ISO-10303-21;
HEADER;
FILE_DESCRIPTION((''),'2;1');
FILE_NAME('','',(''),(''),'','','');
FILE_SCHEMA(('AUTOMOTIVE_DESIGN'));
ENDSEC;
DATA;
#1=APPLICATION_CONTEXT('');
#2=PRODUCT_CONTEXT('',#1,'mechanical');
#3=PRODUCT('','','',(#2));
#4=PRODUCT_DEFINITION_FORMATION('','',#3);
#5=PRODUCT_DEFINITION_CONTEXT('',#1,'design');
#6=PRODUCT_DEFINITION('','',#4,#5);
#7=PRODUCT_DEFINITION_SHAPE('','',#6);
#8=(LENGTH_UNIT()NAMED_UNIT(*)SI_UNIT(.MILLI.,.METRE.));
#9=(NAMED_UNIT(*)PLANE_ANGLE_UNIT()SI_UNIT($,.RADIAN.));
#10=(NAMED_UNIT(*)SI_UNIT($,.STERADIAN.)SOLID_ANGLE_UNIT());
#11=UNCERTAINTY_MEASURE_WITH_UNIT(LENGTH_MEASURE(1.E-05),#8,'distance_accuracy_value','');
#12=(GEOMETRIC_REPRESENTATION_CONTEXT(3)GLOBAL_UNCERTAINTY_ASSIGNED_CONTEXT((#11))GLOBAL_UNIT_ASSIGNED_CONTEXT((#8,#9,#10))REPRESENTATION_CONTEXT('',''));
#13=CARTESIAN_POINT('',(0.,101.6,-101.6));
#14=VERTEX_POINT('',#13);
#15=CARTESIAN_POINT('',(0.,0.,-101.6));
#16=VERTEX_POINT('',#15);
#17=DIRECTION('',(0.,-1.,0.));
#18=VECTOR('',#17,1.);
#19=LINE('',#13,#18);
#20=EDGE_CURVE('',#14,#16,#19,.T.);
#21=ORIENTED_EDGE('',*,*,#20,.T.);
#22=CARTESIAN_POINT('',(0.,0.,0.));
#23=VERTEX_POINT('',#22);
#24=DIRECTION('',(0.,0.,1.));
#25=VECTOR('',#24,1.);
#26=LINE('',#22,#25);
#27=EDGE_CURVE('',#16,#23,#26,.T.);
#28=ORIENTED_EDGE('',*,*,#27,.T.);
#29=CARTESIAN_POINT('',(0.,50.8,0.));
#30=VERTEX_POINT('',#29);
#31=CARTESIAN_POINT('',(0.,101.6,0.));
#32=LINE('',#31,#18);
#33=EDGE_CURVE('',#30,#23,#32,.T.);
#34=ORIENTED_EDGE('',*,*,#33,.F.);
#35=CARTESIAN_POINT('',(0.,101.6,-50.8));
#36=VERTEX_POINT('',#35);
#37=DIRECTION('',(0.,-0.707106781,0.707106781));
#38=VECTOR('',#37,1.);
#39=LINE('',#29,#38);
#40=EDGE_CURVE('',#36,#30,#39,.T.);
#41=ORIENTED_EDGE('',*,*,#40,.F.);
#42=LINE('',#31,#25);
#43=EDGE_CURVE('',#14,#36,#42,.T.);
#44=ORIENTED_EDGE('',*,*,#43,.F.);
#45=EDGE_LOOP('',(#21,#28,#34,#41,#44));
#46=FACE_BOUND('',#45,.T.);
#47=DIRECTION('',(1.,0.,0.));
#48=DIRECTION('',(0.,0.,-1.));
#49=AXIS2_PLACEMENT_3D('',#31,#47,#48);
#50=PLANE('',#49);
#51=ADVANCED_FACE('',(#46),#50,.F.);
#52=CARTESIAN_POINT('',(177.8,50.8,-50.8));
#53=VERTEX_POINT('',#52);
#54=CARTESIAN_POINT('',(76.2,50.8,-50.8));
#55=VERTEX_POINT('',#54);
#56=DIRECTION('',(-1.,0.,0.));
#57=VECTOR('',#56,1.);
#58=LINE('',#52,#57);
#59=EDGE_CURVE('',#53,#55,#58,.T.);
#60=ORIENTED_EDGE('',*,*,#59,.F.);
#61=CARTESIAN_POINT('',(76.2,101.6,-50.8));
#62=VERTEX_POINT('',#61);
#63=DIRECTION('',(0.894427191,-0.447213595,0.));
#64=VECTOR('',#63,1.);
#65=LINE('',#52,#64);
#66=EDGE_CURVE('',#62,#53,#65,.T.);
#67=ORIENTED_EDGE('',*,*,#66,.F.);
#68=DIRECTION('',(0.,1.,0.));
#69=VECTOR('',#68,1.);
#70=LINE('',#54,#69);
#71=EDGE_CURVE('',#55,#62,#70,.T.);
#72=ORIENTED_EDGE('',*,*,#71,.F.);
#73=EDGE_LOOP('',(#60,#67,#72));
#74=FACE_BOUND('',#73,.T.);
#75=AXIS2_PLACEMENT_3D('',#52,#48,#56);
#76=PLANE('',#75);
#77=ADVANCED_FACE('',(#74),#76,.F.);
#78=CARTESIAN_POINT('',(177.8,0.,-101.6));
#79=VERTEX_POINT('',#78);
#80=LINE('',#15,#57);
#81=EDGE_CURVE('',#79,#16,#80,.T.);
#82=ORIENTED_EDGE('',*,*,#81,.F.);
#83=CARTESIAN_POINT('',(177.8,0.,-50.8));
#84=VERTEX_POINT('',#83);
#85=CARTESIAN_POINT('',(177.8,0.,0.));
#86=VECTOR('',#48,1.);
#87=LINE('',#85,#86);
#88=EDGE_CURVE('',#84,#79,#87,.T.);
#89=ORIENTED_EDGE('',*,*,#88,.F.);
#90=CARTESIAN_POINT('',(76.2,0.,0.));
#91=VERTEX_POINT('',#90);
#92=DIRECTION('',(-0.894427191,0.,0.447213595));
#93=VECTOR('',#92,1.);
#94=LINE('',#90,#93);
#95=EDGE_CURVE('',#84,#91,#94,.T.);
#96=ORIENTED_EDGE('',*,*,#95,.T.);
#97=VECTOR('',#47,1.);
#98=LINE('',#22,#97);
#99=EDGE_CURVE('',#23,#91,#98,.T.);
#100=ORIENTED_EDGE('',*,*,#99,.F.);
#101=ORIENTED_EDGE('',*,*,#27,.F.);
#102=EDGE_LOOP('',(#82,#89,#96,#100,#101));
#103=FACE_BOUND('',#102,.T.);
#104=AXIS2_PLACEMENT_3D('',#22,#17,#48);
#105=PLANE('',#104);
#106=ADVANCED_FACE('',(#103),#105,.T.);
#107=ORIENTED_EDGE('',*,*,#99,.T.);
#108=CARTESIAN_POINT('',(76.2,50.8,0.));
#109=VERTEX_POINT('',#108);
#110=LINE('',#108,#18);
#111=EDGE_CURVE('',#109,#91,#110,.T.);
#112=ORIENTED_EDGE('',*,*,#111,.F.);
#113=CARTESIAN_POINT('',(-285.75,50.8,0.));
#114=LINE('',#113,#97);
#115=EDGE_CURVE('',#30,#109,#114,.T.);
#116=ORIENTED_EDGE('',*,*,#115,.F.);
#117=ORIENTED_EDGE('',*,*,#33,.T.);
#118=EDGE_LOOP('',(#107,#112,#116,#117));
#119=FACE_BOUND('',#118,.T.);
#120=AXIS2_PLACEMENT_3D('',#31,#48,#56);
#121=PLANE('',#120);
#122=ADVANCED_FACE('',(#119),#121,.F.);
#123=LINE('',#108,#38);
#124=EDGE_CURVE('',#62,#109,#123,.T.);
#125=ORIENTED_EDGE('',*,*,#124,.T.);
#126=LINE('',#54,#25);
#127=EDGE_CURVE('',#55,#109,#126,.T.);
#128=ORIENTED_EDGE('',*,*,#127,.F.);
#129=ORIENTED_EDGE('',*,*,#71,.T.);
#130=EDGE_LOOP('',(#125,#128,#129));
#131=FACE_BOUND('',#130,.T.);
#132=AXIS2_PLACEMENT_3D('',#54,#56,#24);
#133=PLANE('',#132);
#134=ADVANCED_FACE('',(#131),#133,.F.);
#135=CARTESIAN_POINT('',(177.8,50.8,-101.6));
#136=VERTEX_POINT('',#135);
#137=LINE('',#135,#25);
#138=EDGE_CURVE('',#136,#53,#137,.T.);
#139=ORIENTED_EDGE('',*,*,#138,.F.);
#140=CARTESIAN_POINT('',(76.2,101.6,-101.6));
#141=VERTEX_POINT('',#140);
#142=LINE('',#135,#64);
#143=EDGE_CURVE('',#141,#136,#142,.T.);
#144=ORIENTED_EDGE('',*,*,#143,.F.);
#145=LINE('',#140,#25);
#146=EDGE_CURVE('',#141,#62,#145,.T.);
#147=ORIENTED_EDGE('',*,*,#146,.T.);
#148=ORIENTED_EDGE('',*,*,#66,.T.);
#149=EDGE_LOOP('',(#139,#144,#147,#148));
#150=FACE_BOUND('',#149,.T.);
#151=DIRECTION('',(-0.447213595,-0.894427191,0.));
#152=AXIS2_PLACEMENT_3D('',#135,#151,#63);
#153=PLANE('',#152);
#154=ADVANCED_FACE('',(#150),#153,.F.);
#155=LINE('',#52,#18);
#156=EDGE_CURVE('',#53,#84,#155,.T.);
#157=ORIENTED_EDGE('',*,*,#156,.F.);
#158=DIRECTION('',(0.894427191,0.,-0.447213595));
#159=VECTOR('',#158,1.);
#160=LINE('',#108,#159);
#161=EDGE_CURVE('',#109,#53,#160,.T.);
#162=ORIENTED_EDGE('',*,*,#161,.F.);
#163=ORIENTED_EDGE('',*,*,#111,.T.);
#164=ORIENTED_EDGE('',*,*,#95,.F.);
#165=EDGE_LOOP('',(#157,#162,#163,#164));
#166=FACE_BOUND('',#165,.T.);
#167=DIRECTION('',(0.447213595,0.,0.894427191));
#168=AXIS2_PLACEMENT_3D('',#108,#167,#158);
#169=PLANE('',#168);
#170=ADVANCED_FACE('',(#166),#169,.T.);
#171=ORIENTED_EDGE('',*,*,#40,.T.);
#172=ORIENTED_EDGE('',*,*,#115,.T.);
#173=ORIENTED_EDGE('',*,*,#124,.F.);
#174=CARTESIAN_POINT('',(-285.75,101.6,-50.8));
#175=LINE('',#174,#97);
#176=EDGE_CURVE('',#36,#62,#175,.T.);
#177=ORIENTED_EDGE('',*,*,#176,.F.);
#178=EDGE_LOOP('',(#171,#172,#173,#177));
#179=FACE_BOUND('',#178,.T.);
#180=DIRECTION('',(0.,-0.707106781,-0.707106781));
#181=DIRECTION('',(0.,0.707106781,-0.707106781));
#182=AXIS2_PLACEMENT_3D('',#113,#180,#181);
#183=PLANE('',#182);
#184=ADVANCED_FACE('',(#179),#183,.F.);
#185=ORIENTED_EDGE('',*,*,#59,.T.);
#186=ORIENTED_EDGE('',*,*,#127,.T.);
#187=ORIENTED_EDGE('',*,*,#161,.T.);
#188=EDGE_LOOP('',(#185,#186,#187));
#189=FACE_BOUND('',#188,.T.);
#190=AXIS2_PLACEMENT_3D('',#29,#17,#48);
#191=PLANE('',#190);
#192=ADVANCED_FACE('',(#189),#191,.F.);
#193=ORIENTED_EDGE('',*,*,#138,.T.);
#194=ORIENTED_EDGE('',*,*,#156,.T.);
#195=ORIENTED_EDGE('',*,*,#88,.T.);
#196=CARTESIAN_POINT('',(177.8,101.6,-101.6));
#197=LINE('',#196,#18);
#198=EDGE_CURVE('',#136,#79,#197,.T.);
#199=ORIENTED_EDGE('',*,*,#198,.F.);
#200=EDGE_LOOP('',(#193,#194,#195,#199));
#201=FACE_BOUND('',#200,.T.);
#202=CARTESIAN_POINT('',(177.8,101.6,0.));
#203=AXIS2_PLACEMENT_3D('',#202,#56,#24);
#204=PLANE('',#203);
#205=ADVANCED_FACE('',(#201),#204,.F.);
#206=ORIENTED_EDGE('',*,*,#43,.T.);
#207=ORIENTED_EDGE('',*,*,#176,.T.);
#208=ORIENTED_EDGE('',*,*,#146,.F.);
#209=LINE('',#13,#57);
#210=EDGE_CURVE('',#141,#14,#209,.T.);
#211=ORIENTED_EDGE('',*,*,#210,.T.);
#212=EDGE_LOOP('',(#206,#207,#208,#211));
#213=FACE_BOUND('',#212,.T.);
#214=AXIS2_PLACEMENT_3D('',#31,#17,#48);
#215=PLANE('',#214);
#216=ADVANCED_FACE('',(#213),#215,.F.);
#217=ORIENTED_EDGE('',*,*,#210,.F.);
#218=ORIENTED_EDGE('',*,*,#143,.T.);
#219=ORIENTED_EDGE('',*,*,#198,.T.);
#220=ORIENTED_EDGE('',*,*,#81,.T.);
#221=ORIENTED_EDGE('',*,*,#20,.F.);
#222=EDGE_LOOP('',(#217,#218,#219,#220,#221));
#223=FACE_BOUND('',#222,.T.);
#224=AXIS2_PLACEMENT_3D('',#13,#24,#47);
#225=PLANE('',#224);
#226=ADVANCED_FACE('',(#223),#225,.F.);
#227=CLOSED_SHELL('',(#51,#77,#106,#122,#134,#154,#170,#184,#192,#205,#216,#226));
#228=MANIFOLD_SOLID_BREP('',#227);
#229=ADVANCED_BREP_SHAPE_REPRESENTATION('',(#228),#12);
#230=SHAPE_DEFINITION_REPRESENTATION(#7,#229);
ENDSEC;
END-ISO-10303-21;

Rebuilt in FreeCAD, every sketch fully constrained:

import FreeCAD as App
import Part
import Sketcher

V = App.Vector
Q = App.Units.Quantity


def add_polygon(sketch, points):
    """Adds a closed chain of lines whose ends are joined by coincident constraints."""
    first, n = sketch.GeometryCount, len(points)
    for a, b in zip(points, points[1:] + points[:1]):
        sketch.addGeometry(Part.LineSegment(App.Vector(*a, 0), App.Vector(*b, 0)), False)
    for i in range(n):
        sketch.addConstraint(Sketcher.Constraint("Coincident", first + i, 2, first + (i + 1) % n, 1))

doc = App.newDocument("Part")
params = doc.addObject("Spreadsheet::Sheet", "Params")
for row, (alias, value) in enumerate([
    ("sketch1_width", "7 in"),
    ("sketch1_height", "4 in"),
    ("pad1_length", "4 in"),
    ("pocket1_length", "1 mm"),
    ("pocket1_length2", "3 in"),
    ("sketch3_width", "4 in"),
    ("sketch3_height", "2 in"),
    ("pocket2_length", "2 in"),
    ("sketch4_width", "4 in"),
    ("sketch4_height", "2 in"),
    ("sketch5_width", "4 in"),
    ("sketch5_height", "2 in"),
    ("pocket4_length", "2 in"),
    ("sketch6_width", "4 in"),
    ("sketch6_height", "2 in"),
    ("pocket5_length", "2 in"),
], start=1):
    params.set(f"A{row}", alias)
    params.set(f"B{row}", "=" + value)
    params.setAlias(f"B{row}", alias)

body = doc.addObject("PartDesign::Body", "Body")

# Sketch on XZ plane
sketch1 = body.newObject("Sketcher::SketchObject", "Sketch")
sketch1.AttachmentSupport = (doc.getObject("XZ_Plane"), [""])
sketch1.MapMode = "FlatFace"
add_polygon(sketch1, [(0, -102), (0, 0), (178, 0), (178, -102)])  # lines 0-3
sketch1.addConstraint(Sketcher.Constraint("Vertical", 0))
sketch1.addConstraint(Sketcher.Constraint("Horizontal", 1))
sketch1.addConstraint(Sketcher.Constraint("Vertical", 2))
sketch1.addConstraint(Sketcher.Constraint("Horizontal", 3))
sketch1.addConstraint(Sketcher.Constraint("Coincident", 0, 2, -1, 1))
sketch1.addConstraint(Sketcher.Constraint("DistanceX", 1, 1, 1, 2, Q("7 in")))
sketch1.addConstraint(Sketcher.Constraint("DistanceY", 0, 1, 0, 2, Q("4 in")))
sketch1.setExpression("Constraints[9]", "Params.sketch1_width")
sketch1.setExpression("Constraints[10]", "Params.sketch1_height")
pad1 = body.newObject("PartDesign::Pad", "Pad")
pad1.Profile = sketch1
pad1.setExpression("Length", "Params.pad1_length")
pad1.Reversed = True

# Sketch on YZ plane
sketch2 = body.newObject("Sketcher::SketchObject", "Sketch001")
sketch2.AttachmentSupport = (doc.getObject("YZ_Plane"), [""])
sketch2.MapMode = "FlatFace"
add_polygon(sketch2, [(102, -51), (-159, 210), (-348, 774), (-87, 862), (102, 297)])  # lines 0-4
sketch2.addConstraint(Sketcher.Constraint("Vertical", 4))
sketch2.addConstraint(Sketcher.Constraint("Perpendicular", 1, 2))
sketch2.addConstraint(Sketcher.Constraint("Perpendicular", 2, 3))
sketch2.addConstraint(Sketcher.Constraint("Equal", 1, 3))
sketch2.addConstraint(Sketcher.Constraint("DistanceX", -1, 1, 3, 2, Q("4 in")))
sketch2.addConstraint(Sketcher.Constraint("DistanceY", 4, 2, -1, 1, Q("2 in")))
sketch2.addConstraint(Sketcher.Constraint("Angle", 0, Q("135 deg")))
sketch2.addConstraint(Sketcher.Constraint("Distance", 2, Q("275.216301 mm")))
sketch2.addConstraint(Sketcher.Constraint("Distance", 1, Q("594.736392 mm")))
sketch2.addConstraint(Sketcher.Constraint("DistanceY", 4, 2, 4, 1, Q("348.168196 mm")))
pocket1 = body.newObject("PartDesign::Pocket", "Pocket")
pocket1.Profile = sketch2
pocket1.Type = "TwoLengths"
pocket1.setExpression("Length", "Params.pocket1_length")
pocket1.setExpression("Length2", "Params.pocket1_length2")

# Sketch on XZ plane
sketch3 = body.newObject("Sketcher::SketchObject", "Sketch002")
sketch3.AttachmentSupport = (doc.getObject("XZ_Plane"), [""])
sketch3.MapMode = "FlatFace"
add_polygon(sketch3, [(178, -51), (76, 0), (178, 0)])  # lines 0-2
sketch3.addConstraint(Sketcher.Constraint("Horizontal", 1))
sketch3.addConstraint(Sketcher.Constraint("Vertical", 2))
sketch3.addConstraint(Sketcher.Constraint("PointOnObject", 0, 2, -1))
sketch3.addConstraint(Sketcher.Constraint("DistanceX", 1, 1, 1, 2, Q("4 in")))
sketch3.addConstraint(Sketcher.Constraint("DistanceY", 2, 2, 2, 1, Q("2 in")))
sketch3.addConstraint(Sketcher.Constraint("DistanceX", -1, 1, 0, 2, Q("3 in")))
sketch3.setExpression("Constraints[6]", "Params.sketch3_width")
sketch3.setExpression("Constraints[7]", "Params.sketch3_height")
pocket2 = body.newObject("PartDesign::Pocket", "Pocket001")
pocket2.Profile = sketch3
pocket2.setExpression("Length", "Params.pocket2_length")

# Sketch on XZ plane
sketch4 = body.newObject("Sketcher::SketchObject", "Sketch003")
sketch4.AttachmentSupport = (doc.getObject("XZ_Plane"), [""])
sketch4.MapMode = "FlatFace"
sketch4.AttachmentOffset = App.Placement(V(0, 0, -4 * 25.4), App.Rotation())
add_polygon(sketch4, [(178, -51), (76, 0), (178, 0)])  # lines 0-2
sketch4.addConstraint(Sketcher.Constraint("Horizontal", 1))
sketch4.addConstraint(Sketcher.Constraint("Vertical", 2))
sketch4.addConstraint(Sketcher.Constraint("PointOnObject", 0, 2, -1))
sketch4.addConstraint(Sketcher.Constraint("DistanceX", 1, 1, 1, 2, Q("4 in")))
sketch4.addConstraint(Sketcher.Constraint("DistanceY", 2, 2, 2, 1, Q("2 in")))
sketch4.addConstraint(Sketcher.Constraint("DistanceX", -1, 1, 0, 2, Q("3 in")))
sketch4.setExpression("Constraints[6]", "Params.sketch4_width")
sketch4.setExpression("Constraints[7]", "Params.sketch4_height")
pocket3 = body.newObject("PartDesign::Pocket", "Pocket002")
pocket3.Profile = sketch4
pocket3.Type = "ThroughAll"
pocket3.Midplane = True

# Sketch on XZ plane
sketch5 = body.newObject("Sketcher::SketchObject", "Sketch004")
sketch5.AttachmentSupport = (doc.getObject("XZ_Plane"), [""])
sketch5.MapMode = "FlatFace"
sketch5.AttachmentOffset = App.Placement(V(0, 0, -4 * 25.4), App.Rotation())
add_polygon(sketch5, [(178, -51), (76, -51), (76, 0)])  # lines 0-2
sketch5.addConstraint(Sketcher.Constraint("Horizontal", 0))
sketch5.addConstraint(Sketcher.Constraint("Vertical", 1))
sketch5.addConstraint(Sketcher.Constraint("PointOnObject", 1, 2, -1))
sketch5.addConstraint(Sketcher.Constraint("DistanceX", 0, 2, 0, 1, Q("4 in")))
sketch5.addConstraint(Sketcher.Constraint("DistanceY", 1, 1, 1, 2, Q("2 in")))
sketch5.addConstraint(Sketcher.Constraint("DistanceX", -1, 1, 0, 2, Q("3 in")))
sketch5.setExpression("Constraints[6]", "Params.sketch5_width")
sketch5.setExpression("Constraints[7]", "Params.sketch5_height")
pocket4 = body.newObject("PartDesign::Pocket", "Pocket003")
pocket4.Profile = sketch5
pocket4.setExpression("Length", "Params.pocket4_length")
pocket4.Reversed = True

# Sketch on XY plane
sketch6 = body.newObject("Sketcher::SketchObject", "Sketch005")
sketch6.AttachmentSupport = (doc.getObject("XY_Plane"), [""])
sketch6.MapMode = "FlatFace"
sketch6.AttachmentOffset = App.Placement(V(0, 0, -2 * 25.4), App.Rotation())
add_polygon(sketch6, [(76, 102), (178, 51), (178, 102)])  # lines 0-2
sketch6.addConstraint(Sketcher.Constraint("Vertical", 1))
sketch6.addConstraint(Sketcher.Constraint("Horizontal", 2))
sketch6.addConstraint(Sketcher.Constraint("DistanceX", 2, 2, 2, 1, Q("4 in")))
sketch6.addConstraint(Sketcher.Constraint("DistanceY", 1, 1, 1, 2, Q("2 in")))
sketch6.addConstraint(Sketcher.Constraint("DistanceX", -1, 1, 0, 2, Q("7 in")))
sketch6.addConstraint(Sketcher.Constraint("DistanceY", -1, 1, 0, 2, Q("2 in")))
sketch6.setExpression("Constraints[5]", "Params.sketch6_width")
sketch6.setExpression("Constraints[6]", "Params.sketch6_height")
pocket5 = body.newObject("PartDesign::Pocket", "Pocket004")
pocket5.Profile = sketch6
pocket5.setExpression("Length", "Params.pocket5_length")

doc.recompute()
